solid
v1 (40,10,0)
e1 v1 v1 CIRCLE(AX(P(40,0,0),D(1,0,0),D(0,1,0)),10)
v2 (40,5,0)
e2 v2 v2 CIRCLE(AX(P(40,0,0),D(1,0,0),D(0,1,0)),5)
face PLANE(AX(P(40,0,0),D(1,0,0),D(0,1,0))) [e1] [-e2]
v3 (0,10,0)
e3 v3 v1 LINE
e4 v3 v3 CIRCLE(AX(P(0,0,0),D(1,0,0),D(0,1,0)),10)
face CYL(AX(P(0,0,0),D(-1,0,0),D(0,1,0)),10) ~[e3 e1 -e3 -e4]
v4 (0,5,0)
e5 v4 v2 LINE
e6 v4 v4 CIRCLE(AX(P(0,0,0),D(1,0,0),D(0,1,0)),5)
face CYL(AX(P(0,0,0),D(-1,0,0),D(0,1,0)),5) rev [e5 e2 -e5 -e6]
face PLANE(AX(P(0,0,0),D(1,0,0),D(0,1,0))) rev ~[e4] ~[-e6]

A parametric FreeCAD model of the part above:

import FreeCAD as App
import Part
import Sketcher
Q = App.Units.Quantity

doc = App.newDocument("Part")
body = doc.addObject("PartDesign::Body", "Body")

sketch1 = body.newObject("Sketcher::SketchObject", "Sketch")
sketch1.AttachmentSupport = (doc.getObject("YZ_Plane"), [""])
sketch1.MapMode = "FlatFace"
sketch1.addGeometry(Part.Circle(App.Vector(0, 0, 0), App.Vector(0, 0, 1), 10), False)
sketch1.addGeometry(Part.Circle(App.Vector(0, 0, 0), App.Vector(0, 0, 1), 5), False)
sketch1.addConstraint(Sketcher.Constraint("Coincident", 0, 3, -1, 1))
sketch1.addConstraint(Sketcher.Constraint("Coincident", 1, 3, -1, 1))
sketch1.addConstraint(Sketcher.Constraint("Diameter", 0, Q("20 mm")))
sketch1.addConstraint(Sketcher.Constraint("Diameter", 1, Q("10 mm")))
pad1 = body.newObject("PartDesign::Pad", "Pad")
pad1.Profile = sketch1
pad1.Length = 40

doc.recompute()
